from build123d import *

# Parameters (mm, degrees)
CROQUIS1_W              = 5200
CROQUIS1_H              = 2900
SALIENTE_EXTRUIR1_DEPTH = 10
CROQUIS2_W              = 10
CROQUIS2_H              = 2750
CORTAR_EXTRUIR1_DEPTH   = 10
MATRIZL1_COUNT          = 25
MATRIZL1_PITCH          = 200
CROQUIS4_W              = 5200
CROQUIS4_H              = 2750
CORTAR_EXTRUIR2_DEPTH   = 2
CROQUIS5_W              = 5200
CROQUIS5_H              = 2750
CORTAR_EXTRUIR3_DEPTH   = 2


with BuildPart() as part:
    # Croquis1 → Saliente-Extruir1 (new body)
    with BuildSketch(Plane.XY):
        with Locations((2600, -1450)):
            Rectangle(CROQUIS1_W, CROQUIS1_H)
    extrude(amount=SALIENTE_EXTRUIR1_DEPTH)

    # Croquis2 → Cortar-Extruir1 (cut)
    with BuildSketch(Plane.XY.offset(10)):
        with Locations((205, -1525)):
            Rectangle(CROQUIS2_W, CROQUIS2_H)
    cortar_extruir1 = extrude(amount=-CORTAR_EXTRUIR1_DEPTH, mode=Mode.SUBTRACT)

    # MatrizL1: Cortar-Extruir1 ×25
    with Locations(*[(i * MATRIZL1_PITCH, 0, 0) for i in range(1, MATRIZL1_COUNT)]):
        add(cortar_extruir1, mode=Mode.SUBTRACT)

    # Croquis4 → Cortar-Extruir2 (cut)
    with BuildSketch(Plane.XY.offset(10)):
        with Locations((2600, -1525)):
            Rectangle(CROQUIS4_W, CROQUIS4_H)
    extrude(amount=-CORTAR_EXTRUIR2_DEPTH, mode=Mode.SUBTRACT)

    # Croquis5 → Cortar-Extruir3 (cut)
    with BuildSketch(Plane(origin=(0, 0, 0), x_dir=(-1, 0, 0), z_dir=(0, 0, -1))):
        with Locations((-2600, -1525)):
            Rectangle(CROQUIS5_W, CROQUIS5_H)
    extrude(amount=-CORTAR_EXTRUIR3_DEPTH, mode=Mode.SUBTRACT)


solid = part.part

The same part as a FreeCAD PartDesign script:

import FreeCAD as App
import Part
import Sketcher

V = App.Vector


def add_polygon(sketch, points):
    """Adds a closed chain of lines whose ends are joined by coincident constraints."""
    first, n = sketch.GeometryCount, len(points)
    for a, b in zip(points, points[1:] + points[:1]):
        sketch.addGeometry(Part.LineSegment(App.Vector(*a, 0), App.Vector(*b, 0)), False)
    for i in range(n):
        sketch.addConstraint(Sketcher.Constraint("Coincident", first + i, 2, first + (i + 1) % n, 1))

doc = App.newDocument("Part")
body = doc.addObject("PartDesign::Body", "Body")

# Sketch on XY plane
sketch1 = body.newObject("Sketcher::SketchObject", "Sketch")
sketch1.AttachmentSupport = (doc.getObject("XY_Plane"), [""])
sketch1.MapMode = "FlatFace"
add_polygon(sketch1, [(0, 0), (0, -2900), (5200, -2900), (5200, 0)])  # lines 0-3
sketch1.addConstraint([
    Sketcher.Constraint("Vertical", 0),
    Sketcher.Constraint("Horizontal", 1),
    Sketcher.Constraint("Vertical", 2),
    Sketcher.Constraint("Horizontal", 3),
    Sketcher.Constraint("Coincident", 3, 2, -1, 1),
    Sketcher.Constraint("DistanceX", 1, 1, 1, 2, 5200.0),
    Sketcher.Constraint("DistanceY", 0, 2, 0, 1, 2900.0),
])
pad1 = body.newObject("PartDesign::Pad", "Pad")
pad1.Profile = sketch1
pad1.Length = 10

# Sketch on XY plane
sketch2 = body.newObject("Sketcher::SketchObject", "Sketch001")
sketch2.AttachmentSupport = (doc.getObject("XY_Plane"), [""])
sketch2.MapMode = "FlatFace"
sketch2.AttachmentOffset = App.Placement(V(0, 0, 10), App.Rotation())
add_polygon(sketch2, [(200, -150), (200, -2900), (210, -2900), (210, -150)])  # lines 0-3
sketch2.addConstraint([
    Sketcher.Constraint("Vertical", 0),
    Sketcher.Constraint("Horizontal", 1),
    Sketcher.Constraint("Vertical", 2),
    Sketcher.Constraint("Horizontal", 3),
    Sketcher.Constraint("DistanceX", 1, 1, 1, 2, 10.0),
    Sketcher.Constraint("DistanceY", 0, 2, 0, 1, 2750.0),
    Sketcher.Constraint("DistanceX", -1, 1, 0, 2, 200.0),
    Sketcher.Constraint("DistanceY", 0, 2, -1, 1, 2900.0),
])
pocket1 = body.newObject("PartDesign::Pocket", "Pocket")
pocket1.Profile = sketch2
pocket1.Length = 10
doc.recompute()

linearpattern = body.newObject("PartDesign::LinearPattern", "LinearPattern")
linearpattern.Originals = [pocket1]
linearpattern.Direction = (doc.getObject("X_Axis"), [""])
linearpattern.Mode = "offset"
linearpattern.Offset = 200
linearpattern.Occurrences = 25
body.Tip = linearpattern

# Sketch on XY plane
sketch3 = body.newObject("Sketcher::SketchObject", "Sketch002")
sketch3.AttachmentSupport = (doc.getObject("XY_Plane"), [""])
sketch3.MapMode = "FlatFace"
sketch3.AttachmentOffset = App.Placement(V(0, 0, 10), App.Rotation())
add_polygon(sketch3, [(0, -150), (0, -2900), (5200, -2900), (5200, -150)])  # lines 0-3
sketch3.addConstraint([
    Sketcher.Constraint("Vertical", 0),
    Sketcher.Constraint("Horizontal", 1),
    Sketcher.Constraint("Vertical", 2),
    Sketcher.Constraint("Horizontal", 3),
    Sketcher.Constraint("PointOnObject", 0, 2, -2),
    Sketcher.Constraint("DistanceX", 1, 1, 1, 2, 5200.0),
    Sketcher.Constraint("DistanceY", 0, 2, 0, 1, 2750.0),
    Sketcher.Constraint("DistanceY", 0, 2, -1, 1, 2900.0),
])
pocket2 = body.newObject("PartDesign::Pocket", "Pocket001")
pocket2.Profile = sketch3
pocket2.Length = 2

# Sketch on XY plane
sketch4 = body.newObject("Sketcher::SketchObject", "Sketch003")
sketch4.AttachmentSupport = (doc.getObject("XY_Plane"), [""])
sketch4.MapMode = "FlatFace"
add_polygon(sketch4, [(5200, -150), (5200, -2900), (0, -2900), (0, -150)])  # lines 0-3
sketch4.addConstraint([
    Sketcher.Constraint("Vertical", 0),
    Sketcher.Constraint("Horizontal", 1),
    Sketcher.Constraint("Vertical", 2),
    Sketcher.Constraint("Horizontal", 3),
    Sketcher.Constraint("PointOnObject", 1, 2, -2),
    Sketcher.Constraint("DistanceX", 1, 2, 1, 1, 5200.0),
    Sketcher.Constraint("DistanceY", 0, 2, 0, 1, 2750.0),
    Sketcher.Constraint("DistanceY", 0, 2, -1, 1, 2900.0),
])
pocket3 = body.newObject("PartDesign::Pocket", "Pocket002")
pocket3.Profile = sketch4
pocket3.Length = 2
pocket3.Reversed = True

doc.recompute()
